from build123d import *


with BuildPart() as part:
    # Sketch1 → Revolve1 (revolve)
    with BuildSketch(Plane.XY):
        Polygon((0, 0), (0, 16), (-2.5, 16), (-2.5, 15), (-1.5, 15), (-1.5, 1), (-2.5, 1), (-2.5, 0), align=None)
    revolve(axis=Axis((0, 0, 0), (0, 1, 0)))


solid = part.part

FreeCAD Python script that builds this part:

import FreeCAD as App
import Part
import Sketcher

V = App.Vector


def add_polygon(sketch, points):
    """Adds a closed chain of lines whose ends are joined by coincident constraints."""
    first, n = sketch.GeometryCount, len(points)
    for a, b in zip(points, points[1:] + points[:1]):
        sketch.addGeometry(Part.LineSegment(App.Vector(*a, 0), App.Vector(*b, 0)), False)
    for i in range(n):
        sketch.addConstraint(Sketcher.Constraint("Coincident", first + i, 2, first + (i + 1) % n, 1))

doc = App.newDocument("Part")
body = doc.addObject("PartDesign::Body", "Body")

# Sketch on XY plane
sketch1 = body.newObject("Sketcher::SketchObject", "Sketch")
sketch1.AttachmentSupport = (doc.getObject("XY_Plane"), [""])
sketch1.MapMode = "FlatFace"
add_polygon(sketch1, [(0, 0), (0, 16), (-2.5, 16), (-2.5, 15), (-1.5, 15), (-1.5, 1), (-2.5, 1), (-2.5, 0)])  # lines 0-7
sketch1.addConstraint(Sketcher.Constraint("Vertical", 0))
sketch1.addConstraint(Sketcher.Constraint("Horizontal", 1))
sketch1.addConstraint(Sketcher.Constraint("Vertical", 2))
sketch1.addConstraint(Sketcher.Constraint("Horizontal", 3))
sketch1.addConstraint(Sketcher.Constraint("Vertical", 4))
sketch1.addConstraint(Sketcher.Constraint("Horizontal", 5))
sketch1.addConstraint(Sketcher.Constraint("Vertical", 6))
sketch1.addConstraint(Sketcher.Constraint("Horizontal", 7))
sketch1.addConstraint(Sketcher.Constraint("Coincident", 7, 2, -1, 1))
sketch1.addConstraint(Sketcher.Constraint("Vertical", 2, 2, 5, 2))
sketch1.addConstraint(Sketcher.Constraint("Equal", 5, 2))
sketch1.addConstraint(Sketcher.Constraint("Equal", 2, 6))
sketch1.addConstraint(Sketcher.Constraint("DistanceX", 3, 1, 3, 2, 1.0))
sketch1.addConstraint(Sketcher.Constraint("DistanceY", 0, 1, 0, 2, 16.0))
sketch1.addConstraint(Sketcher.Constraint("DistanceX", 1, 2, 1, 1, 2.5))
revolution = body.newObject("PartDesign::Revolution", "Revolution")
revolution.Profile = sketch1
revolution.ReferenceAxis = (sketch1, ["V_Axis"])
revolution.Angle = 360

doc.recompute()
